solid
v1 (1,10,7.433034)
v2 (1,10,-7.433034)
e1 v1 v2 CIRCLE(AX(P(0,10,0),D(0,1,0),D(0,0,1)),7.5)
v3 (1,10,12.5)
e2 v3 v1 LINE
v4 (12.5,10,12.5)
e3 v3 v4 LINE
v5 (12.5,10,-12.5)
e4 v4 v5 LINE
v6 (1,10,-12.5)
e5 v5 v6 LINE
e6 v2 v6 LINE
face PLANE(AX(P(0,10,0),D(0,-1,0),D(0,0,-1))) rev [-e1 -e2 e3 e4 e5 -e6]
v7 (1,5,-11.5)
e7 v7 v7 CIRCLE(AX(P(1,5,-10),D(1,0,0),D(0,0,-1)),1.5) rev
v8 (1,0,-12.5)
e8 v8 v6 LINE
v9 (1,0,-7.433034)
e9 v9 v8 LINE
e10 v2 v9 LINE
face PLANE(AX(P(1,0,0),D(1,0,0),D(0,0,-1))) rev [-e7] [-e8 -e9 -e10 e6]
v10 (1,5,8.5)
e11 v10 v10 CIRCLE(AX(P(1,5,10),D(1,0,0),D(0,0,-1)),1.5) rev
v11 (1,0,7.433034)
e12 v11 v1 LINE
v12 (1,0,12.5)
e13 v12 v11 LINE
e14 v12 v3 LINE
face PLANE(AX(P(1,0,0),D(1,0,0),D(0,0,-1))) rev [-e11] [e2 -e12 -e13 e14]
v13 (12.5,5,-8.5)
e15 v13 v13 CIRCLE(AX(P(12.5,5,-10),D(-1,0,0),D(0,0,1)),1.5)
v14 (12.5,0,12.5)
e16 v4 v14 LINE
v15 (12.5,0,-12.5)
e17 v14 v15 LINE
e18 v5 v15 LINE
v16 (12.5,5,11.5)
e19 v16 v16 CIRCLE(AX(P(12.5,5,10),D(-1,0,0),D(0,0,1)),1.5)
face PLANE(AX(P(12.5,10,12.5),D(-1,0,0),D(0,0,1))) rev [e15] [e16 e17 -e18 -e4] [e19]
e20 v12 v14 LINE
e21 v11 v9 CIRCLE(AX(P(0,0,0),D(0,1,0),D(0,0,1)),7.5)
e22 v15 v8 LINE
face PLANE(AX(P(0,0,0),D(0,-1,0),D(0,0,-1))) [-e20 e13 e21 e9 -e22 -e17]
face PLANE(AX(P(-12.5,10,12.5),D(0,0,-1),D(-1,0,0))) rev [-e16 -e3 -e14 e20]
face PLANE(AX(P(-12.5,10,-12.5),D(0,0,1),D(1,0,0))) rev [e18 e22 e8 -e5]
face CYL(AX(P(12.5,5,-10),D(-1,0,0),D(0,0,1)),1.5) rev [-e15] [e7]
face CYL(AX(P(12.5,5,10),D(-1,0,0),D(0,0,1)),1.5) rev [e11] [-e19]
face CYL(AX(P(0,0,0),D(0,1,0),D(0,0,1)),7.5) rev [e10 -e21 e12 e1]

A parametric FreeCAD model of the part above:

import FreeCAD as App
import Part
import Sketcher
from FreeCAD import Vector


def add_polygon(sketch, points):
    """Adds a closed chain of lines whose ends are joined by coincident constraints."""
    first, n = sketch.GeometryCount, len(points)
    for a, b in zip(points, points[1:] + points[:1]):
        sketch.addGeometry(Part.LineSegment(App.Vector(*a, 0), App.Vector(*b, 0)), False)
    for i in range(n):
        sketch.addConstraint(Sketcher.Constraint("Coincident", first + i, 2, first + (i + 1) % n, 1))

doc = App.newDocument("Part")
body = doc.addObject("PartDesign::Body", "Body")

# Sketch on XZ plane
sketch1 = body.newObject("Sketcher::SketchObject", "Sketch")
sketch1.AttachmentSupport = (doc.getObject("XZ_Plane"), [""])
sketch1.MapMode = "FlatFace"
add_polygon(sketch1, [(-12, -12), (-12, 12), (12, 12), (12, -12)])  # lines 0-3
sketch1.addConstraint([
    Sketcher.Constraint("Vertical", 0),
    Sketcher.Constraint("Horizontal", 1),
    Sketcher.Constraint("Vertical", 2),
    Sketcher.Constraint("Horizontal", 3),
    Sketcher.Constraint("Symmetric", 0, 2, 2, 2, -1, 1),
    Sketcher.Constraint("Equal", 3, 0),
    Sketcher.Constraint("DistanceX", 1, 1, 1, 2, 25.0),
])
pad1 = body.newObject("PartDesign::Pad", "Pad")
pad1.Profile = sketch1
pad1.Length = 10
pad1.Reversed = True

# Sketch on XZ plane
sketch2 = body.newObject("Sketcher::SketchObject", "Sketch001")
sketch2.AttachmentSupport = (doc.getObject("XZ_Plane"), [""])
sketch2.MapMode = "FlatFace"
sketch2.AttachmentOffset = App.Placement(Vector(0, 0, -10), App.Rotation())
sketch2.addGeometry(Part.Circle(Vector(0, 0, 0), Vector(0, 0, 1), 8), False)
sketch2.addConstraint([
    Sketcher.Constraint("Coincident", 0, 3, -1, 1),
    Sketcher.Constraint("Diameter", 0, 15.0),
])
pocket1 = body.newObject("PartDesign::Pocket", "Pocket")
pocket1.Profile = sketch2
pocket1.Type = "ThroughAll"
pocket1.Reversed = True

# Sketch on XZ plane
sketch3 = body.newObject("Sketcher::SketchObject", "Sketch002")
sketch3.AttachmentSupport = (doc.getObject("XZ_Plane"), [""])
sketch3.MapMode = "FlatFace"
sketch3.AttachmentOffset = App.Placement(Vector(0, 0, -10), App.Rotation())
add_polygon(sketch3, [(-12, -12), (-12, 12), (0, 12), (0, -12)])  # lines 0-3
sketch3.addConstraint([
    Sketcher.Constraint("Vertical", 0),
    Sketcher.Constraint("Horizontal", 1),
    Sketcher.Constraint("Vertical", 2),
    Sketcher.Constraint("Horizontal", 3),
    Sketcher.Constraint("Symmetric", 1, 2, 2, 2, -1, 1),
    Sketcher.Constraint("DistanceY", 0, 1, 0, 2, 25.0),
    Sketcher.Constraint("DistanceX", 1, 1, 1, 2, 12.5),
])
pocket2 = body.newObject("PartDesign::Pocket", "Pocket001")
pocket2.Profile = sketch3
pocket2.Length = 10
pocket2.Reversed = True

# Sketch on YZ plane
sketch4 = body.newObject("Sketcher::SketchObject", "Sketch003")
sketch4.AttachmentSupport = (doc.getObject("YZ_Plane"), [""])
sketch4.MapMode = "FlatFace"
sketch4.addGeometry([
    Part.Circle(Vector(5, -10, 0), Vector(0, 0, 1), 1.5),
    Part.Circle(Vector(5, 10, 0), Vector(0, 0, 1), 1.5),
], False)
sketch4.addConstraint([
    Sketcher.Constraint("Equal", 0, 1),
    Sketcher.Constraint("Symmetric", 0, 3, 1, 3, -1),
    Sketcher.Constraint("Diameter", 0, 3.0),
    Sketcher.Constraint("DistanceX", -1, 1, 0, 3, 5.0),
    Sketcher.Constraint("DistanceY", 0, 3, -1, 1, 10.0),
])
pocket3 = body.newObject("PartDesign::Pocket", "Pocket002")
pocket3.Profile = sketch4
pocket3.Type = "ThroughAll"
pocket3.Reversed = True

# Sketch on XZ plane
sketch5 = body.newObject("Sketcher::SketchObject", "Sketch004")
sketch5.AttachmentSupport = (doc.getObject("XZ_Plane"), [""])
sketch5.MapMode = "FlatFace"
sketch5.AttachmentOffset = App.Placement(Vector(0, 0, -10), App.Rotation())
add_polygon(sketch5, [(1, -12.5), (0, -12.5), (0, 12.5), (1, 12.5)])  # lines 0-3
sketch5.addConstraint([
    Sketcher.Constraint("Horizontal", 0),
    Sketcher.Constraint("Vertical", 1),
    Sketcher.Constraint("Horizontal", 2),
    Sketcher.Constraint("Vertical", 3),
    Sketcher.Constraint("Symmetric", 0, 2, 1, 2, -1, 1),
    Sketcher.Constraint("DistanceX", 0, 2, 0, 1, 1.0),
    Sketcher.Constraint("DistanceY", 1, 1, 1, 2, 25.0),
])
pocket4 = body.newObject("PartDesign::Pocket", "Pocket003")
pocket4.Profile = sketch5
pocket4.Type = "ThroughAll"
pocket4.Reversed = True

doc.recompute()
